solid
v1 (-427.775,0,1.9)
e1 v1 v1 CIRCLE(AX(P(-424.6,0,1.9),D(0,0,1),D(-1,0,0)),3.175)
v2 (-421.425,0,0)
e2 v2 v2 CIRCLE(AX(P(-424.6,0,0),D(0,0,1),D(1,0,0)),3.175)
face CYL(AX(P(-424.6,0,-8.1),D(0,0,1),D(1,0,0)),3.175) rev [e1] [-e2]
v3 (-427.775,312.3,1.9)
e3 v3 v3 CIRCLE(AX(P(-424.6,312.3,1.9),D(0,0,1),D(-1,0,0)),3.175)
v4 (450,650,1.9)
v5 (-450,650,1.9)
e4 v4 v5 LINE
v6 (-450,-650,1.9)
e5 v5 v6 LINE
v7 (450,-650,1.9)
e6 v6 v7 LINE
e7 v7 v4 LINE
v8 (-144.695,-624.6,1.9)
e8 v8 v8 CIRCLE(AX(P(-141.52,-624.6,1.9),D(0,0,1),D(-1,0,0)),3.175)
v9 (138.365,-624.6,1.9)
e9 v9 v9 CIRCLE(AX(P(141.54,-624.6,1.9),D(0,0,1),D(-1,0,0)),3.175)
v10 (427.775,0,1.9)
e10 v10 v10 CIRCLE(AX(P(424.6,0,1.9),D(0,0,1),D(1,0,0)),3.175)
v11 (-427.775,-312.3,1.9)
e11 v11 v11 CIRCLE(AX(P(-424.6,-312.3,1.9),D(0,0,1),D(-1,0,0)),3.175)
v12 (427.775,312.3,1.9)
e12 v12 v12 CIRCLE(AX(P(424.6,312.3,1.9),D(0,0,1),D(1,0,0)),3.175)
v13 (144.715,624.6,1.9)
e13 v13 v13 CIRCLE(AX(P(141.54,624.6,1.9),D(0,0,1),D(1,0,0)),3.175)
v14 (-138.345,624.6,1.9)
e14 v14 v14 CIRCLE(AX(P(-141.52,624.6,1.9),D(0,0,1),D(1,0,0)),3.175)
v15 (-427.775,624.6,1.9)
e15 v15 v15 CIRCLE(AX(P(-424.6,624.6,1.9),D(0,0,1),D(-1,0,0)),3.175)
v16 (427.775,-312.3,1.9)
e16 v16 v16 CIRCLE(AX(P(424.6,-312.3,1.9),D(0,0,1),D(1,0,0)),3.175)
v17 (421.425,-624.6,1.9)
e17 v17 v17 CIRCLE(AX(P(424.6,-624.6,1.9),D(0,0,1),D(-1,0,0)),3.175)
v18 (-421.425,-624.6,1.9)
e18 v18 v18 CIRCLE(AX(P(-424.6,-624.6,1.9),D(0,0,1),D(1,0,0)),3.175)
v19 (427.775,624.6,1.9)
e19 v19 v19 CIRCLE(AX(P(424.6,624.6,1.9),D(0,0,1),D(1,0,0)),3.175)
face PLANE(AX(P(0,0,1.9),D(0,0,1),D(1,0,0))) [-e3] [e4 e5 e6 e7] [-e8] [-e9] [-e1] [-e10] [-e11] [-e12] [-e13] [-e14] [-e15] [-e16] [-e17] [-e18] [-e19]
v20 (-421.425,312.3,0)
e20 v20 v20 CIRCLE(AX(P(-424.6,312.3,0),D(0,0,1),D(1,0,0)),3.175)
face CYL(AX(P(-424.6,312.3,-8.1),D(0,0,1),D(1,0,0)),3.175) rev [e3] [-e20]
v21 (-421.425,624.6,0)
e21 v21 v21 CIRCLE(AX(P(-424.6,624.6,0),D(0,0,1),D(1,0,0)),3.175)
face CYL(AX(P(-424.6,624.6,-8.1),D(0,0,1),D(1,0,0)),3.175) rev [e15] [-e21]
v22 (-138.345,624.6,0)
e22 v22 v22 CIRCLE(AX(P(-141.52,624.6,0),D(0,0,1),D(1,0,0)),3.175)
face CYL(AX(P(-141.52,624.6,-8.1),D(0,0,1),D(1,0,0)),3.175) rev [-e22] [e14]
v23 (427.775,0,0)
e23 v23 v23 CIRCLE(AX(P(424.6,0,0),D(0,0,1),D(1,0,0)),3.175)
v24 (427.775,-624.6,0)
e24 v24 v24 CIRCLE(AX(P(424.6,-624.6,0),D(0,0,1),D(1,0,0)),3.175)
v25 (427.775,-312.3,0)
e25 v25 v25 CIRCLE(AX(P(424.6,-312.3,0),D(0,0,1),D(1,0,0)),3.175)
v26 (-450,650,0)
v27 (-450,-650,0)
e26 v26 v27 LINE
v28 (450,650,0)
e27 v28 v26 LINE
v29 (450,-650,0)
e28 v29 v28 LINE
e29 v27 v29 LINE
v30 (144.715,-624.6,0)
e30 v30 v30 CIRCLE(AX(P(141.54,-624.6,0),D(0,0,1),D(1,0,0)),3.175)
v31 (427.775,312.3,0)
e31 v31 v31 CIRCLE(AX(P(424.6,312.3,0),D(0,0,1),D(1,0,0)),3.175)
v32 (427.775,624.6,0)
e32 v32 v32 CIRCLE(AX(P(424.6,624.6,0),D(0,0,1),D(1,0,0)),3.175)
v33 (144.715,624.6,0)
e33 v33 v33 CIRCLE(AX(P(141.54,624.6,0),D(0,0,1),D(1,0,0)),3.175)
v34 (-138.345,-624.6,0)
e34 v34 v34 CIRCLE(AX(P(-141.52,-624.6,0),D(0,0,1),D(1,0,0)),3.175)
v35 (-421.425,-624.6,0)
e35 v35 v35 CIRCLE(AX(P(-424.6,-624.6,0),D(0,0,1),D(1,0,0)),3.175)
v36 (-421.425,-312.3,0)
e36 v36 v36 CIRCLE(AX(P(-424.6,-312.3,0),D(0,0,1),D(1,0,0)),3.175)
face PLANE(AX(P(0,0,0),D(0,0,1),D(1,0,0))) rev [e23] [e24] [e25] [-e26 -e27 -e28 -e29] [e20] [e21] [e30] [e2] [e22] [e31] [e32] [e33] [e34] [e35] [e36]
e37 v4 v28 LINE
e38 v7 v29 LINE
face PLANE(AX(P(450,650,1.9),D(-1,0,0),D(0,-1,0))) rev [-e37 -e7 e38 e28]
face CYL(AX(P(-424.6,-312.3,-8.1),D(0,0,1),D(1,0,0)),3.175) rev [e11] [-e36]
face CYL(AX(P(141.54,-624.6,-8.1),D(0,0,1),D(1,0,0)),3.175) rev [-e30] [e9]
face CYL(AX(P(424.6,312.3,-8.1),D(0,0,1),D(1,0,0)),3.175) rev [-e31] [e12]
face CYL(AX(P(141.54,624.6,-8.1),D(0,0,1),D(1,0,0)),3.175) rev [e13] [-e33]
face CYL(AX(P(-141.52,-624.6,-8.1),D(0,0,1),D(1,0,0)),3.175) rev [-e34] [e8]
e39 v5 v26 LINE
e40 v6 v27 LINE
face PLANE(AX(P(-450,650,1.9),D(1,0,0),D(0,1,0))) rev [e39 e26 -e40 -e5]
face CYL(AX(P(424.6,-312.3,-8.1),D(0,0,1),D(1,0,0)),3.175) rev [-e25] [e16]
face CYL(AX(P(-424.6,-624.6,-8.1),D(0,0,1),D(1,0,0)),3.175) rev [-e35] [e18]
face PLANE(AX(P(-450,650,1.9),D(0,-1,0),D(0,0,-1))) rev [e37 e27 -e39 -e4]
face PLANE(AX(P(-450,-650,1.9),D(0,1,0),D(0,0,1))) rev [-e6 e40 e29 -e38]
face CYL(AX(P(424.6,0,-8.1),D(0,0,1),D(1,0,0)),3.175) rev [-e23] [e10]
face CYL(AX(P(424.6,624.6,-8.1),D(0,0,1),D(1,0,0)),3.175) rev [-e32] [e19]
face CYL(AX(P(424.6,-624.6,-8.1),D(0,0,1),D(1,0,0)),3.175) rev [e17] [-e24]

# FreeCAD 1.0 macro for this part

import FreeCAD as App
import Part
import Sketcher
Q = App.Units.Quantity

doc = App.newDocument("Part")
body = doc.addObject("PartDesign::Body", "Body")

sketch1 = doc.addObject("Sketcher::SketchObject", "Sketch")
body.addObject(sketch1)
sketch1.AttachmentSupport = (doc.XY_Plane, [""])
sketch1.MapMode = "FlatFace"
sketch1.addGeometry(Part.LineSegment(App.Vector(-450, 650, 0), App.Vector(-450, -650, 0)), False)
sketch1.addGeometry(Part.LineSegment(App.Vector(-450, -650, 0), App.Vector(450, -650, 0)), False)
sketch1.addGeometry(Part.LineSegment(App.Vector(450, -650, 0), App.Vector(450, 650, 0)), False)
sketch1.addGeometry(Part.LineSegment(App.Vector(450, 650, 0), App.Vector(-450, 650, 0)), False)
sketch1.addConstraint(Sketcher.Constraint("Coincident", 0, 2, 1, 1))
sketch1.addConstraint(Sketcher.Constraint("Coincident", 1, 2, 2, 1))
sketch1.addConstraint(Sketcher.Constraint("Coincident", 2, 2, 3, 1))
sketch1.addConstraint(Sketcher.Constraint("Coincident", 3, 2, 0, 1))
sketch1.addConstraint(Sketcher.Constraint("Vertical", 0))
sketch1.addConstraint(Sketcher.Constraint("Horizontal", 1))
sketch1.addConstraint(Sketcher.Constraint("Vertical", 2))
sketch1.addConstraint(Sketcher.Constraint("Horizontal", 3))
sketch1.addConstraint(Sketcher.Constraint("Symmetric", 0, 2, 2, 2, -1, 1))
sketch1.addConstraint(Sketcher.Constraint("DistanceX", 1, 1, 1, 2, Q("900 mm")))
sketch1.addConstraint(Sketcher.Constraint("DistanceY", 0, 2, 0, 1, Q("1300 mm")))
pad1 = doc.addObject("PartDesign::Pad", "Pad")
body.addObject(pad1)
pad1.Profile = sketch1
pad1.Length = 1.9

sketch2 = doc.addObject("Sketcher::SketchObject", "Sketch001")
body.addObject(sketch2)
sketch2.AttachmentSupport = (doc.XY_Plane, [""])
sketch2.MapMode = "FlatFace"
sketch2.AttachmentOffset = App.Placement(App.Vector(0, 0, 1.9), App.Rotation())
sketch2.addGeometry(Part.Circle(App.Vector(424.6, 624.6, 0), App.Vector(0, 0, 1), 3.175), False)
sketch2.addGeometry(Part.Circle(App.Vector(424.6, -624.6, 0), App.Vector(0, 0, 1), 3.175), False)
sketch2.addGeometry(Part.Circle(App.Vector(-424.6, -624.6, 0), App.Vector(0, 0, 1), 3.175), False)
sketch2.addGeometry(Part.Circle(App.Vector(-424.6, 624.6, 0), App.Vector(0, 0, 1), 3.175), False)
sketch2.addGeometry(Part.Circle(App.Vector(141.54, 624.6, 0), App.Vector(0, 0, 1), 3.175), False)
sketch2.addGeometry(Part.Circle(App.Vector(-141.52, 624.6, 0), App.Vector(0, 0, 1), 3.175), False)
sketch2.addGeometry(Part.Circle(App.Vector(-141.52, -624.6, 0), App.Vector(0, 0, 1), 3.175), False)
sketch2.addGeometry(Part.Circle(App.Vector(141.54, -624.6, 0), App.Vector(0, 0, 1), 3.175), False)
sketch2.addGeometry(Part.Circle(App.Vector(424.6, 0, 0), App.Vector(0, 0, 1), 3.175), False)
sketch2.addGeometry(Part.Circle(App.Vector(424.6, 312.3, 0), App.Vector(0, 0, 1), 3.175), False)
sketch2.addGeometry(Part.Circle(App.Vector(424.6, -312.3, 0), App.Vector(0, 0, 1), 3.175), False)
sketch2.addGeometry(Part.Circle(App.Vector(-424.6, -312.3, 0), App.Vector(0, 0, 1), 3.175), False)
sketch2.addGeometry(Part.Circle(App.Vector(-424.6, 0, 0), App.Vector(0, 0, 1), 3.175), False)
sketch2.addGeometry(Part.Circle(App.Vector(-424.6, 312.3, 0), App.Vector(0, 0, 1), 3.175), False)
sketch2.addConstraint(Sketcher.Constraint("Equal", 0, 1))
sketch2.addConstraint(Sketcher.Constraint("Equal", 1, 2))
sketch2.addConstraint(Sketcher.Constraint("Equal", 2, 3))
sketch2.addConstraint(Sketcher.Constraint("Equal", 3, 4))
sketch2.addConstraint(Sketcher.Constraint("Equal", 4, 5))
sketch2.addConstraint(Sketcher.Constraint("Equal", 5, 6))
sketch2.addConstraint(Sketcher.Constraint("Equal", 6, 7))
sketch2.addConstraint(Sketcher.Constraint("Equal", 7, 8))
sketch2.addConstraint(Sketcher.Constraint("Equal", 8, 9))
sketch2.addConstraint(Sketcher.Constraint("Equal", 9, 10))
sketch2.addConstraint(Sketcher.Constraint("Equal", 10, 11))
sketch2.addConstraint(Sketcher.Constraint("Equal", 11, 12))
sketch2.addConstraint(Sketcher.Constraint("Equal", 12, 13))
sketch2.addConstraint(Sketcher.Constraint("Symmetric", 0, 3, 2, 3, -1, 1))
sketch2.addConstraint(Sketcher.Constraint("Symmetric", 1, 3, 3, 3, -1, 1))
sketch2.addConstraint(Sketcher.Constraint("Symmetric", 9, 3, 11, 3, -1, 1))
sketch2.addConstraint(Sketcher.Constraint("Symmetric", 8, 3, 12, 3, -1, 1))
sketch2.addConstraint(Sketcher.Constraint("Symmetric", 10, 3, 13, 3, -1, 1))
sketch2.addConstraint(Sketcher.Constraint("Symmetric", 1, 3, 2, 3, -2))
sketch2.addConstraint(Sketcher.Constraint("Symmetric", 10, 3, 11, 3, -2))
sketch2.addConstraint(Sketcher.Constraint("Symmetric", 5, 3, 6, 3, -1))
sketch2.addConstraint(Sketcher.Constraint("Symmetric", 4, 3, 7, 3, -1))
sketch2.addConstraint(Sketcher.Constraint("PointOnObject", 8, 3, -1))
sketch2.addConstraint(Sketcher.Constraint("Horizontal", 3, 3, 4, 3))
sketch2.addConstraint(Sketcher.Constraint("Horizontal", 4, 3, 5, 3))
sketch2.addConstraint(Sketcher.Constraint("Vertical", 1, 3, 8, 3))
sketch2.addConstraint(Sketcher.Constraint("Vertical", 8, 3, 9, 3))
sketch2.addConstraint(Sketcher.Constraint("Diameter", 0, Q("6.35 mm")))
sketch2.addConstraint(Sketcher.Constraint("DistanceX", -1, 1, 0, 3, Q("424.6 mm")))
sketch2.addConstraint(Sketcher.Constraint("DistanceY", -1, 1, 0, 3, Q("624.6 mm")))
sketch2.addConstraint(Sketcher.Constraint("DistanceY", -1, 1, 9, 3, Q("312.3 mm")))
sketch2.addConstraint(Sketcher.Constraint("DistanceX", -1, 1, 4, 3, Q("141.54 mm")))
sketch2.addConstraint(Sketcher.Constraint("DistanceX", 5, 3, -1, 1, Q("141.52 mm")))
pocket1 = doc.addObject("PartDesign::Pocket", "Pocket")
body.addObject(pocket1)
pocket1.Profile = sketch2
pocket1.Length = 10

doc.recompute()
